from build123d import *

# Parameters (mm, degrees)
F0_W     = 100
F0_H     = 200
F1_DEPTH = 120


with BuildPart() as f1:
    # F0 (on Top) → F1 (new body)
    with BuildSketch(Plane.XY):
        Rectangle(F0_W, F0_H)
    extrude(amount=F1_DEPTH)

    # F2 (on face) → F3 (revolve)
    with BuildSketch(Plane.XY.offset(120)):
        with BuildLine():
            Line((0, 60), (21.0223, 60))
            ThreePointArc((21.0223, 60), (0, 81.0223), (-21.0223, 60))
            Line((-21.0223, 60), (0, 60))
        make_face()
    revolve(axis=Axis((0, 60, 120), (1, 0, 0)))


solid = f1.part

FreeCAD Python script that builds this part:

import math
import FreeCAD as App
import Part
import Sketcher


def add_polygon(sketch, points):
    """Adds a closed chain of lines whose ends are joined by coincident constraints."""
    first, n = sketch.GeometryCount, len(points)
    for a, b in zip(points, points[1:] + points[:1]):
        sketch.addGeometry(Part.LineSegment(App.Vector(*a, 0), App.Vector(*b, 0)), False)
    for i in range(n):
        sketch.addConstraint(Sketcher.Constraint("Coincident", first + i, 2, first + (i + 1) % n, 1))

doc = App.newDocument("Part")
body = doc.addObject("PartDesign::Body", "Body")

# Sketch on XY plane
sketch1 = body.newObject("Sketcher::SketchObject", "Sketch")
sketch1.AttachmentSupport = (doc.getObject("XY_Plane"), [""])
sketch1.MapMode = "FlatFace"
add_polygon(sketch1, [(-50, 100), (-50, -100), (50, -100), (50, 100)])  # lines 0-3
sketch1.addConstraint([
    Sketcher.Constraint("Vertical", 0),
    Sketcher.Constraint("Horizontal", 1),
    Sketcher.Constraint("Vertical", 2),
    Sketcher.Constraint("Horizontal", 3),
    Sketcher.Constraint("Symmetric", 0, 2, 2, 2, -1, 1),
    Sketcher.Constraint("DistanceX", 1, 1, 1, 2, 100.0),
    Sketcher.Constraint("DistanceY", 0, 2, 0, 1, 200.0),
])
pad1 = body.newObject("PartDesign::Pad", "Pad")
pad1.Profile = sketch1
pad1.Length = 120

# Sketch on XY plane
sketch2 = body.newObject("Sketcher::SketchObject", "Sketch001")
sketch2.AttachmentSupport = (doc.getObject("XY_Plane"), [""])
sketch2.MapMode = "FlatFace"
sketch2.AttachmentOffset = App.Placement(App.Vector(0, 0, 120), App.Rotation())
sketch2.addGeometry([
    Part.ArcOfCircle(Part.Circle(App.Vector(0, 60, 0), App.Vector(0, 0, 1), 21), math.radians(0), math.radians(180)),
    Part.LineSegment(App.Vector(-21, 60, 0), App.Vector(21, 60, 0)),
], False)
sketch2.addGeometry(Part.LineSegment(App.Vector(-21, 60, 0), App.Vector(21, 60, 0)), True)  # axis
sketch2.addConstraint([
    Sketcher.Constraint("Coincident", 0, 1, 1, 2),
    Sketcher.Constraint("Coincident", 1, 1, 0, 2),
    Sketcher.Constraint("Horizontal", 1),
    Sketcher.Constraint("Horizontal", 2),
    Sketcher.Constraint("Coincident", 2, 1, 1, 1),
    Sketcher.Constraint("PointOnObject", 0, 3, -2),
    Sketcher.Constraint("Equal", 1, 2),
    Sketcher.Constraint("DistanceY", -1, 1, 0, 3, 60.0),
    Sketcher.Constraint("DistanceY", -1, 1, 0, 1, 60.0),
    Sketcher.Constraint("Radius", 0, 21.0223),
])
revolution = body.newObject("PartDesign::Revolution", "Revolution")
revolution.Profile = sketch2
revolution.ReferenceAxis = (sketch2, ["Axis0"])
revolution.Angle = 360

doc.recompute()
